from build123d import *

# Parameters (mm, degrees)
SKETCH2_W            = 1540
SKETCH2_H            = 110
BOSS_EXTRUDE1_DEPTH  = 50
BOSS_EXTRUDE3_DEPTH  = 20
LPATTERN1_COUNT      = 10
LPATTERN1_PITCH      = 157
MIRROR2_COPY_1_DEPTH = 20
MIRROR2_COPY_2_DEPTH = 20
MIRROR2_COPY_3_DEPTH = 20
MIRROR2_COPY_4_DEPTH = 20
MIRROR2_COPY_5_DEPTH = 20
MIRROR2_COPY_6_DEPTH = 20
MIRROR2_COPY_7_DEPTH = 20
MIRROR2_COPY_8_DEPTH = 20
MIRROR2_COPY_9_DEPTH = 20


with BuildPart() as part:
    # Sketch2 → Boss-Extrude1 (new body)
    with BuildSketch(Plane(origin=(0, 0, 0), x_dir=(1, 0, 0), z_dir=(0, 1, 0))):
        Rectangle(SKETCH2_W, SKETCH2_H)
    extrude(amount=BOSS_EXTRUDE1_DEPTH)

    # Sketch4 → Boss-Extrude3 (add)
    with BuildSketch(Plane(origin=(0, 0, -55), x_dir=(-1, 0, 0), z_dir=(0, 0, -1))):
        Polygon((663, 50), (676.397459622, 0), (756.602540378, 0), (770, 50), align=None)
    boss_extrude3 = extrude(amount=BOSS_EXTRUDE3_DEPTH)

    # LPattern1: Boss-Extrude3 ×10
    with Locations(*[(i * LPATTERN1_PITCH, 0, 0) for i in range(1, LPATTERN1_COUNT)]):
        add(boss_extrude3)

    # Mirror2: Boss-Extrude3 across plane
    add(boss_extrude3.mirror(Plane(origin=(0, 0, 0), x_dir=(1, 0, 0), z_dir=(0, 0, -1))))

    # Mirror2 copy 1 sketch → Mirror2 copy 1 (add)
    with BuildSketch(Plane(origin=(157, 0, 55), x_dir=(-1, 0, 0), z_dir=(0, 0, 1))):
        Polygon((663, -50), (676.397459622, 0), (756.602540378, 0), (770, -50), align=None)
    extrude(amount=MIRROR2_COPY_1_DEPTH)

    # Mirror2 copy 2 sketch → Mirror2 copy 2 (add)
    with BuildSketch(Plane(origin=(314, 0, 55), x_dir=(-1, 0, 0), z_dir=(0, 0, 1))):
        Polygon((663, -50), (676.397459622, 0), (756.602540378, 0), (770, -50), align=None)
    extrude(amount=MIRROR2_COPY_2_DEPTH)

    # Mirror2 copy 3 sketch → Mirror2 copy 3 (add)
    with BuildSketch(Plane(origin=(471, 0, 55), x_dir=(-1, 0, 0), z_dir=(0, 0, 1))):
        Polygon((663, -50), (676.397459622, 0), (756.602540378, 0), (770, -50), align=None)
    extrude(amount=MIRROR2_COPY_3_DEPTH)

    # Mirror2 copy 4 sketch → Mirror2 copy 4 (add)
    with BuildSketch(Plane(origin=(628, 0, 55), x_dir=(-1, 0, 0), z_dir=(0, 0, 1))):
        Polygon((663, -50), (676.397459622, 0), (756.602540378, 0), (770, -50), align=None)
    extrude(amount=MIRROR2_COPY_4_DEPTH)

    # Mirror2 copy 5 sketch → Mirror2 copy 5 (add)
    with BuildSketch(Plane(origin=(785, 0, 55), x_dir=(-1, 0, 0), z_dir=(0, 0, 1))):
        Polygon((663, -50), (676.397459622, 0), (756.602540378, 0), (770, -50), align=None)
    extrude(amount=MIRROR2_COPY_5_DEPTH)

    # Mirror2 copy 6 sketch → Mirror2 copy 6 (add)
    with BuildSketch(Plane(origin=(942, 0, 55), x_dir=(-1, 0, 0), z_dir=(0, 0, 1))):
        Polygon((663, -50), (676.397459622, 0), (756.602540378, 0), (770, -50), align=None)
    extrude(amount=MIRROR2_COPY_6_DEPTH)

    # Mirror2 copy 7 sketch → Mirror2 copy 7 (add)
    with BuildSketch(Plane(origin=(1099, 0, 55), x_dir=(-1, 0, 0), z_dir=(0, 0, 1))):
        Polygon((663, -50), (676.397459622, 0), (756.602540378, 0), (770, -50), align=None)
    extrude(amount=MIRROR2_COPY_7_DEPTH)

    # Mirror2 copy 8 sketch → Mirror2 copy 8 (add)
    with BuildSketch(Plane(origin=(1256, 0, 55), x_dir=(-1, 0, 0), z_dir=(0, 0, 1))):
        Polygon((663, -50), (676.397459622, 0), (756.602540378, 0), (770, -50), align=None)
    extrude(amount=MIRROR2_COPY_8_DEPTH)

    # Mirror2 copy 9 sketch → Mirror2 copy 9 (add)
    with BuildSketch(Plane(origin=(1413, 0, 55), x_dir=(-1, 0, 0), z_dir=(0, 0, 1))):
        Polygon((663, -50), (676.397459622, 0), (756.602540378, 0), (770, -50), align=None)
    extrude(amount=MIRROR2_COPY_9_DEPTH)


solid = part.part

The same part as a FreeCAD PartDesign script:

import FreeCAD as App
import Part
import Sketcher
from FreeCAD import Vector
Q = App.Units.Quantity

doc = App.newDocument("Part")
params = doc.addObject("Spreadsheet::Sheet", "Params")
for row, (alias, value) in enumerate([
    ("sketch1_width", "1540 mm"),
    ("sketch1_height", "110 mm"),
    ("pad1_length", "50 mm"),
    ("sketch2_width", "107 mm"),
    ("pad2_length", "20 mm"),
    ("linearpattern_pitch", "157 mm"),
    ("sketch3_width", "107 mm"),
    ("pad3_length", "20 mm"),
    ("sketch4_width", "107 mm"),
    ("pad4_length", "20 mm"),
    ("sketch5_width", "107 mm"),
    ("pad5_length", "20 mm"),
    ("sketch6_width", "107 mm"),
    ("pad6_length", "20 mm"),
    ("sketch7_width", "107 mm"),
    ("pad7_length", "20 mm"),
    ("sketch8_width", "107 mm"),
    ("pad8_length", "20 mm"),
    ("sketch9_width", "107 mm"),
    ("pad9_length", "20 mm"),
    ("sketch10_width", "107 mm"),
    ("pad10_length", "20 mm"),
    ("sketch11_width", "107 mm"),
    ("pad11_length", "20 mm"),
], start=1):
    params.set(f"A{row}", alias)
    params.set(f"B{row}", "=" + value)
    params.setAlias(f"B{row}", alias)

body = doc.addObject("PartDesign::Body", "Body")

sketch1 = doc.addObject("Sketcher::SketchObject", "Sketch")
body.addObject(sketch1)
sketch1.AttachmentSupport = (doc.XZ_Plane, [""])
sketch1.MapMode = "FlatFace"
sketch1.addGeometry(Part.LineSegment(Vector(-770, -55, 0), Vector(-770, 55, 0)), False)
sketch1.addGeometry(Part.LineSegment(Vector(-770, 55, 0), Vector(770, 55, 0)), False)
sketch1.addGeometry(Part.LineSegment(Vector(770, 55, 0), Vector(770, -55, 0)), False)
sketch1.addGeometry(Part.LineSegment(Vector(770, -55, 0), Vector(-770, -55, 0)), False)
sketch1.addConstraint(Sketcher.Constraint("Coincident", 0, 2, 1, 1))
sketch1.addConstraint(Sketcher.Constraint("Coincident", 1, 2, 2, 1))
sketch1.addConstraint(Sketcher.Constraint("Coincident", 2, 2, 3, 1))
sketch1.addConstraint(Sketcher.Constraint("Coincident", 3, 2, 0, 1))
sketch1.addConstraint(Sketcher.Constraint("Vertical", 0))
sketch1.addConstraint(Sketcher.Constraint("Horizontal", 1))
sketch1.addConstraint(Sketcher.Constraint("Vertical", 2))
sketch1.addConstraint(Sketcher.Constraint("Horizontal", 3))
sketch1.addConstraint(Sketcher.Constraint("Symmetric", 0, 2, 2, 2, -1, 1))
sketch1.addConstraint(Sketcher.Constraint("DistanceX", 1, 1, 1, 2, Q("1540 mm")))
sketch1.addConstraint(Sketcher.Constraint("DistanceY", 0, 1, 0, 2, Q("110 mm")))
sketch1.setExpression("Constraints[9]", "Params.sketch1_width")
sketch1.setExpression("Constraints[10]", "Params.sketch1_height")
pad1 = doc.addObject("PartDesign::Pad", "Pad")
body.addObject(pad1)
pad1.Profile = sketch1
pad1.setExpression("Length", "Params.pad1_length")
pad1.Reversed = True

sketch2 = doc.addObject("Sketcher::SketchObject", "Sketch001")
body.addObject(sketch2)
sketch2.AttachmentSupport = (doc.XY_Plane, [""])
sketch2.MapMode = "FlatFace"
sketch2.AttachmentOffset = App.Placement(Vector(0, 0, -55), App.Rotation())
sketch2.addGeometry(Part.LineSegment(Vector(-663, 50, 0), Vector(-676, 0, 0)), False)
sketch2.addGeometry(Part.LineSegment(Vector(-676, 0, 0), Vector(-757, 0, 0)), False)
sketch2.addGeometry(Part.LineSegment(Vector(-757, 0, 0), Vector(-770, 50, 0)), False)
sketch2.addGeometry(Part.LineSegment(Vector(-770, 50, 0), Vector(-663, 50, 0)), False)
sketch2.addConstraint(Sketcher.Constraint("Coincident", 0, 2, 1, 1))
sketch2.addConstraint(Sketcher.Constraint("Coincident", 1, 2, 2, 1))
sketch2.addConstraint(Sketcher.Constraint("Coincident", 2, 2, 3, 1))
sketch2.addConstraint(Sketcher.Constraint("Coincident", 3, 2, 0, 1))
sketch2.addConstraint(Sketcher.Constraint("Horizontal", 1))
sketch2.addConstraint(Sketcher.Constraint("Horizontal", 3))
sketch2.addConstraint(Sketcher.Constraint("PointOnObject", 0, 2, -1))
sketch2.addConstraint(Sketcher.Constraint("Equal", 0, 2))
sketch2.addConstraint(Sketcher.Constraint("DistanceX", 3, 1, 3, 2, Q("107 mm")))
sketch2.addConstraint(Sketcher.Constraint("Angle", 0, Q("-105 deg")))
sketch2.addConstraint(Sketcher.Constraint("DistanceX", 2, 2, -1, 1, Q("770 mm")))
sketch2.addConstraint(Sketcher.Constraint("DistanceY", -1, 1, 2, 2, Q("50 mm")))
sketch2.setExpression("Constraints[8]", "Params.sketch2_width")
pad2 = doc.addObject("PartDesign::Pad", "Pad001")
body.addObject(pad2)
pad2.Profile = sketch2
pad2.setExpression("Length", "Params.pad2_length")
pad2.Reversed = True
doc.recompute()

linearpattern = doc.addObject("PartDesign::LinearPattern", "LinearPattern")
body.addObject(linearpattern)
linearpattern.Originals = [pad2]
linearpattern.Direction = (doc.X_Axis, [""])
linearpattern.Mode = "offset"
linearpattern.setExpression("Offset", "Params.linearpattern_pitch")
linearpattern.Occurrences = 10
body.Tip = linearpattern
doc.recompute()

mirrored = doc.addObject("PartDesign::Mirrored", "Mirrored")
body.addObject(mirrored)
mirrored.Originals = [pad2]
mirrored.MirrorPlane = (doc.XY_Plane, [""])
body.Tip = mirrored

sketch3 = doc.addObject("Sketcher::SketchObject", "Sketch002")
body.addObject(sketch3)
sketch3.AttachmentSupport = (doc.XY_Plane, [""])
sketch3.MapMode = "FlatFace"
sketch3.AttachmentOffset = App.Placement(Vector(0, 0, 55), App.Rotation())
sketch3.addGeometry(Part.LineSegment(Vector(-519.39746, 0, 0), Vector(-506, 50, 0)), False)
sketch3.addGeometry(Part.LineSegment(Vector(-506, 50, 0), Vector(-613, 50, 0)), False)
sketch3.addGeometry(Part.LineSegment(Vector(-613, 50, 0), Vector(-599.60254, 0, 0)), False)
sketch3.addGeometry(Part.LineSegment(Vector(-599.60254, 0, 0), Vector(-519.39746, 0, 0)), False)
sketch3.addConstraint(Sketcher.Constraint("Coincident", 0, 2, 1, 1))
sketch3.addConstraint(Sketcher.Constraint("Coincident", 1, 2, 2, 1))
sketch3.addConstraint(Sketcher.Constraint("Coincident", 2, 2, 3, 1))
sketch3.addConstraint(Sketcher.Constraint("Coincident", 3, 2, 0, 1))
sketch3.addConstraint(Sketcher.Constraint("Horizontal", 1))
sketch3.addConstraint(Sketcher.Constraint("Horizontal", 3))
sketch3.addConstraint(Sketcher.Constraint("PointOnObject", 2, 2, -1))
sketch3.addConstraint(Sketcher.Constraint("Equal", 0, 2))
sketch3.addConstraint(Sketcher.Constraint("DistanceX", 1, 2, 1, 1, Q("107 mm")))
sketch3.addConstraint(Sketcher.Constraint("Angle", 0, Q("75 deg")))
sketch3.addConstraint(Sketcher.Constraint("DistanceX", 0, 2, -1, 1, Q("506 mm")))
sketch3.addConstraint(Sketcher.Constraint("DistanceY", -1, 1, 0, 2, Q("50 mm")))
sketch3.setExpression("Constraints[8]", "Params.sketch3_width")
pad3 = doc.addObject("PartDesign::Pad", "Pad002")
body.addObject(pad3)
pad3.Profile = sketch3
pad3.setExpression("Length", "Params.pad3_length")

sketch4 = doc.addObject("Sketcher::SketchObject", "Sketch003")
body.addObject(sketch4)
sketch4.AttachmentSupport = (doc.XY_Plane, [""])
sketch4.MapMode = "FlatFace"
sketch4.AttachmentOffset = App.Placement(Vector(0, 0, 55), App.Rotation())
sketch4.addGeometry(Part.LineSegment(Vector(-362, 0, 0), Vector(-349, 50, 0)), False)
sketch4.addGeometry(Part.LineSegment(Vector(-349, 50, 0), Vector(-456, 50, 0)), False)
sketch4.addGeometry(Part.LineSegment(Vector(-456, 50, 0), Vector(-443, 0, 0)), False)
sketch4.addGeometry(Part.LineSegment(Vector(-443, 0, 0), Vector(-362, 0, 0)), False)
sketch4.addConstraint(Sketcher.Constraint("Coincident", 0, 2, 1, 1))
sketch4.addConstraint(Sketcher.Constraint("Coincident", 1, 2, 2, 1))
sketch4.addConstraint(Sketcher.Constraint("Coincident", 2, 2, 3, 1))
sketch4.addConstraint(Sketcher.Constraint("Coincident", 3, 2, 0, 1))
sketch4.addConstraint(Sketcher.Constraint("Horizontal", 1))
sketch4.addConstraint(Sketcher.Constraint("Horizontal", 3))
sketch4.addConstraint(Sketcher.Constraint("PointOnObject", 2, 2, -1))
sketch4.addConstraint(Sketcher.Constraint("Equal", 0, 2))
sketch4.addConstraint(Sketcher.Constraint("DistanceX", 1, 2, 1, 1, Q("107 mm")))
sketch4.addConstraint(Sketcher.Constraint("Angle", 0, Q("75 deg")))
sketch4.addConstraint(Sketcher.Constraint("DistanceX", 0, 2, -1, 1, Q("349 mm")))
sketch4.addConstraint(Sketcher.Constraint("DistanceY", -1, 1, 0, 2, Q("50 mm")))
sketch4.setExpression("Constraints[8]", "Params.sketch4_width")
pad4 = doc.addObject("PartDesign::Pad", "Pad003")
body.addObject(pad4)
pad4.Profile = sketch4
pad4.setExpression("Length", "Params.pad4_length")

sketch5 = doc.addObject("Sketcher::SketchObject", "Sketch004")
body.addObject(sketch5)
sketch5.AttachmentSupport = (doc.XY_Plane, [""])
sketch5.MapMode = "FlatFace"
sketch5.AttachmentOffset = App.Placement(Vector(0, 0, 55), App.Rotation())
sketch5.addGeometry(Part.LineSegment(Vector(-205, 0, 0), Vector(-192, 50, 0)), False)
sketch5.addGeometry(Part.LineSegment(Vector(-192, 50, 0), Vector(-299, 50, 0)), False)
sketch5.addGeometry(Part.LineSegment(Vector(-299, 50, 0), Vector(-286, 0, 0)), False)
sketch5.addGeometry(Part.LineSegment(Vector(-286, 0, 0), Vector(-205, 0, 0)), False)
sketch5.addConstraint(Sketcher.Constraint("Coincident", 0, 2, 1, 1))
sketch5.addConstraint(Sketcher.Constraint("Coincident", 1, 2, 2, 1))
sketch5.addConstraint(Sketcher.Constraint("Coincident", 2, 2, 3, 1))
sketch5.addConstraint(Sketcher.Constraint("Coincident", 3, 2, 0, 1))
sketch5.addConstraint(Sketcher.Constraint("Horizontal", 1))
sketch5.addConstraint(Sketcher.Constraint("Horizontal", 3))
sketch5.addConstraint(Sketcher.Constraint("PointOnObject", 2, 2, -1))
sketch5.addConstraint(Sketcher.Constraint("Equal", 0, 2))
sketch5.addConstraint(Sketcher.Constraint("DistanceX", 1, 2, 1, 1, Q("107 mm")))
sketch5.addConstraint(Sketcher.Constraint("Angle", 0, Q("75 deg")))
sketch5.addConstraint(Sketcher.Constraint("DistanceX", 0, 2, -1, 1, Q("192 mm")))
sketch5.addConstraint(Sketcher.Constraint("DistanceY", -1, 1, 0, 2, Q("50 mm")))
sketch5.setExpression("Constraints[8]", "Params.sketch5_width")
pad5 = doc.addObject("PartDesign::Pad", "Pad004")
body.addObject(pad5)
pad5.Profile = sketch5
pad5.setExpression("Length", "Params.pad5_length")

sketch6 = doc.addObject("Sketcher::SketchObject", "Sketch005")
body.addObject(sketch6)
sketch6.AttachmentSupport = (doc.XY_Plane, [""])
sketch6.MapMode = "FlatFace"
sketch6.AttachmentOffset = App.Placement(Vector(0, 0, 55), App.Rotation())
sketch6.addGeometry(Part.LineSegment(Vector(-48, 0, 0), Vector(-35, 50, 0)), False)
sketch6.addGeometry(Part.LineSegment(Vector(-35, 50, 0), Vector(-142, 50, 0)), False)
sketch6.addGeometry(Part.LineSegment(Vector(-142, 50, 0), Vector(-129, 0, 0)), False)
sketch6.addGeometry(Part.LineSegment(Vector(-129, 0, 0), Vector(-48, 0, 0)), False)
sketch6.addConstraint(Sketcher.Constraint("Coincident", 0, 2, 1, 1))
sketch6.addConstraint(Sketcher.Constraint("Coincident", 1, 2, 2, 1))
sketch6.addConstraint(Sketcher.Constraint("Coincident", 2, 2, 3, 1))
sketch6.addConstraint(Sketcher.Constraint("Coincident", 3, 2, 0, 1))
sketch6.addConstraint(Sketcher.Constraint("Horizontal", 1))
sketch6.addConstraint(Sketcher.Constraint("Horizontal", 3))
sketch6.addConstraint(Sketcher.Constraint("PointOnObject", 2, 2, -1))
sketch6.addConstraint(Sketcher.Constraint("Equal", 0, 2))
sketch6.addConstraint(Sketcher.Constraint("DistanceX", 1, 2, 1, 1, Q("107 mm")))
sketch6.addConstraint(Sketcher.Constraint("Angle", 0, Q("75 deg")))
sketch6.addConstraint(Sketcher.Constraint("DistanceX", 0, 2, -1, 1, Q("35 mm")))
sketch6.addConstraint(Sketcher.Constraint("DistanceY", -1, 1, 0, 2, Q("50 mm")))
sketch6.setExpression("Constraints[8]", "Params.sketch6_width")
pad6 = doc.addObject("PartDesign::Pad", "Pad005")
body.addObject(pad6)
pad6.Profile = sketch6
pad6.setExpression("Length", "Params.pad6_length")

sketch7 = doc.addObject("Sketcher::SketchObject", "Sketch006")
body.addObject(sketch7)
sketch7.AttachmentSupport = (doc.XY_Plane, [""])
sketch7.MapMode = "FlatFace"
sketch7.AttachmentOffset = App.Placement(Vector(0, 0, 55), App.Rotation())
sketch7.addGeometry(Part.LineSegment(Vector(109, 0, 0), Vector(122, 50, 0)), False)
sketch7.addGeometry(Part.LineSegment(Vector(122, 50, 0), Vector(15, 50, 0)), False)
sketch7.addGeometry(Part.LineSegment(Vector(15, 50, 0), Vector(28, 0, 0)), False)
sketch7.addGeometry(Part.LineSegment(Vector(28, 0, 0), Vector(109, 0, 0)), False)
sketch7.addConstraint(Sketcher.Constraint("Coincident", 0, 2, 1, 1))
sketch7.addConstraint(Sketcher.Constraint("Coincident", 1, 2, 2, 1))
sketch7.addConstraint(Sketcher.Constraint("Coincident", 2, 2, 3, 1))
sketch7.addConstraint(Sketcher.Constraint("Coincident", 3, 2, 0, 1))
sketch7.addConstraint(Sketcher.Constraint("Horizontal", 1))
sketch7.addConstraint(Sketcher.Constraint("Horizontal", 3))
sketch7.addConstraint(Sketcher.Constraint("PointOnObject", 2, 2, -1))
sketch7.addConstraint(Sketcher.Constraint("Equal", 0, 2))
sketch7.addConstraint(Sketcher.Constraint("DistanceX", 1, 2, 1, 1, Q("107 mm")))
sketch7.addConstraint(Sketcher.Constraint("Angle", 0, Q("75 deg")))
sketch7.addConstraint(Sketcher.Constraint("DistanceX", -1, 1, 0, 2, Q("122 mm")))
sketch7.addConstraint(Sketcher.Constraint("DistanceY", -1, 1, 0, 2, Q("50 mm")))
sketch7.setExpression("Constraints[8]", "Params.sketch7_width")
pad7 = doc.addObject("PartDesign::Pad", "Pad006")
body.addObject(pad7)
pad7.Profile = sketch7
pad7.setExpression("Length", "Params.pad7_length")

sketch8 = doc.addObject("Sketcher::SketchObject", "Sketch007")
body.addObject(sketch8)
sketch8.AttachmentSupport = (doc.XY_Plane, [""])
sketch8.MapMode = "FlatFace"
sketch8.AttachmentOffset = App.Placement(Vector(0, 0, 55), App.Rotation())
sketch8.addGeometry(Part.LineSegment(Vector(266, 0, 0), Vector(279, 50, 0)), False)
sketch8.addGeometry(Part.LineSegment(Vector(279, 50, 0), Vector(172, 50, 0)), False)
sketch8.addGeometry(Part.LineSegment(Vector(172, 50, 0), Vector(185, 0, 0)), False)
sketch8.addGeometry(Part.LineSegment(Vector(185, 0, 0), Vector(266, 0, 0)), False)
sketch8.addConstraint(Sketcher.Constraint("Coincident", 0, 2, 1, 1))
sketch8.addConstraint(Sketcher.Constraint("Coincident", 1, 2, 2, 1))
sketch8.addConstraint(Sketcher.Constraint("Coincident", 2, 2, 3, 1))
sketch8.addConstraint(Sketcher.Constraint("Coincident", 3, 2, 0, 1))
sketch8.addConstraint(Sketcher.Constraint("Horizontal", 1))
sketch8.addConstraint(Sketcher.Constraint("Horizontal", 3))
sketch8.addConstraint(Sketcher.Constraint("PointOnObject", 2, 2, -1))
sketch8.addConstraint(Sketcher.Constraint("Equal", 0, 2))
sketch8.addConstraint(Sketcher.Constraint("DistanceX", 1, 2, 1, 1, Q("107 mm")))
sketch8.addConstraint(Sketcher.Constraint("Angle", 0, Q("75 deg")))
sketch8.addConstraint(Sketcher.Constraint("DistanceX", -1, 1, 0, 2, Q("279 mm")))
sketch8.addConstraint(Sketcher.Constraint("DistanceY", -1, 1, 0, 2, Q("50 mm")))
sketch8.setExpression("Constraints[8]", "Params.sketch8_width")
pad8 = doc.addObject("PartDesign::Pad", "Pad007")
body.addObject(pad8)
pad8.Profile = sketch8
pad8.setExpression("Length", "Params.pad8_length")

sketch9 = doc.addObject("Sketcher::SketchObject", "Sketch008")
body.addObject(sketch9)
sketch9.AttachmentSupport = (doc.XY_Plane, [""])
sketch9.MapMode = "FlatFace"
sketch9.AttachmentOffset = App.Placement(Vector(0, 0, 55), App.Rotation())
sketch9.addGeometry(Part.LineSegment(Vector(423, 0, 0), Vector(436, 50, 0)), False)
sketch9.addGeometry(Part.LineSegment(Vector(436, 50, 0), Vector(329, 50, 0)), False)
sketch9.addGeometry(Part.LineSegment(Vector(329, 50, 0), Vector(342, 0, 0)), False)
sketch9.addGeometry(Part.LineSegment(Vector(342, 0, 0), Vector(423, 0, 0)), False)
sketch9.addConstraint(Sketcher.Constraint("Coincident", 0, 2, 1, 1))
sketch9.addConstraint(Sketcher.Constraint("Coincident", 1, 2, 2, 1))
sketch9.addConstraint(Sketcher.Constraint("Coincident", 2, 2, 3, 1))
sketch9.addConstraint(Sketcher.Constraint("Coincident", 3, 2, 0, 1))
sketch9.addConstraint(Sketcher.Constraint("Horizontal", 1))
sketch9.addConstraint(Sketcher.Constraint("Horizontal", 3))
sketch9.addConstraint(Sketcher.Constraint("PointOnObject", 2, 2, -1))
sketch9.addConstraint(Sketcher.Constraint("Equal", 0, 2))
sketch9.addConstraint(Sketcher.Constraint("DistanceX", 1, 2, 1, 1, Q("107 mm")))
sketch9.addConstraint(Sketcher.Constraint("Angle", 0, Q("75 deg")))
sketch9.addConstraint(Sketcher.Constraint("DistanceX", -1, 1, 0, 2, Q("436 mm")))
sketch9.addConstraint(Sketcher.Constraint("DistanceY", -1, 1, 0, 2, Q("50 mm")))
sketch9.setExpression("Constraints[8]", "Params.sketch9_width")
pad9 = doc.addObject("PartDesign::Pad", "Pad008")
body.addObject(pad9)
pad9.Profile = sketch9
pad9.setExpression("Length", "Params.pad9_length")

sketch10 = doc.addObject("Sketcher::SketchObject", "Sketch009")
body.addObject(sketch10)
sketch10.AttachmentSupport = (doc.XY_Plane, [""])
sketch10.MapMode = "FlatFace"
sketch10.AttachmentOffset = App.Placement(Vector(0, 0, 55), App.Rotation())
sketch10.addGeometry(Part.LineSegment(Vector(580, 0, 0), Vector(593, 50, 0)), False)
sketch10.addGeometry(Part.LineSegment(Vector(593, 50, 0), Vector(486, 50, 0)), False)
sketch10.addGeometry(Part.LineSegment(Vector(486, 50, 0), Vector(499, 0, 0)), False)
sketch10.addGeometry(Part.LineSegment(Vector(499, 0, 0), Vector(580, 0, 0)), False)
sketch10.addConstraint(Sketcher.Constraint("Coincident", 0, 2, 1, 1))
sketch10.addConstraint(Sketcher.Constraint("Coincident", 1, 2, 2, 1))
sketch10.addConstraint(Sketcher.Constraint("Coincident", 2, 2, 3, 1))
sketch10.addConstraint(Sketcher.Constraint("Coincident", 3, 2, 0, 1))
sketch10.addConstraint(Sketcher.Constraint("Horizontal", 1))
sketch10.addConstraint(Sketcher.Constraint("Horizontal", 3))
sketch10.addConstraint(Sketcher.Constraint("PointOnObject", 2, 2, -1))
sketch10.addConstraint(Sketcher.Constraint("Equal", 0, 2))
sketch10.addConstraint(Sketcher.Constraint("DistanceX", 1, 2, 1, 1, Q("107 mm")))
sketch10.addConstraint(Sketcher.Constraint("Angle", 0, Q("75 deg")))
sketch10.addConstraint(Sketcher.Constraint("DistanceX", -1, 1, 0, 2, Q("593 mm")))
sketch10.addConstraint(Sketcher.Constraint("DistanceY", -1, 1, 0, 2, Q("50 mm")))
sketch10.setExpression("Constraints[8]", "Params.sketch10_width")
pad10 = doc.addObject("PartDesign::Pad", "Pad009")
body.addObject(pad10)
pad10.Profile = sketch10
pad10.setExpression("Length", "Params.pad10_length")

sketch11 = doc.addObject("Sketcher::SketchObject", "Sketch010")
body.addObject(sketch11)
sketch11.AttachmentSupport = (doc.XY_Plane, [""])
sketch11.MapMode = "FlatFace"
sketch11.AttachmentOffset = App.Placement(Vector(0, 0, 55), App.Rotation())
sketch11.addGeometry(Part.LineSegment(Vector(737, 0, 0), Vector(750, 50, 0)), False)
sketch11.addGeometry(Part.LineSegment(Vector(750, 50, 0), Vector(643, 50, 0)), False)
sketch11.addGeometry(Part.LineSegment(Vector(643, 50, 0), Vector(656, 0, 0)), False)
sketch11.addGeometry(Part.LineSegment(Vector(656, 0, 0), Vector(737, 0, 0)), False)
sketch11.addConstraint(Sketcher.Constraint("Coincident", 0, 2, 1, 1))
sketch11.addConstraint(Sketcher.Constraint("Coincident", 1, 2, 2, 1))
sketch11.addConstraint(Sketcher.Constraint("Coincident", 2, 2, 3, 1))
sketch11.addConstraint(Sketcher.Constraint("Coincident", 3, 2, 0, 1))
sketch11.addConstraint(Sketcher.Constraint("Horizontal", 1))
sketch11.addConstraint(Sketcher.Constraint("Horizontal", 3))
sketch11.addConstraint(Sketcher.Constraint("PointOnObject", 2, 2, -1))
sketch11.addConstraint(Sketcher.Constraint("Equal", 0, 2))
sketch11.addConstraint(Sketcher.Constraint("DistanceX", 1, 2, 1, 1, Q("107 mm")))
sketch11.addConstraint(Sketcher.Constraint("Angle", 0, Q("75 deg")))
sketch11.addConstraint(Sketcher.Constraint("DistanceX", -1, 1, 0, 2, Q("750 mm")))
sketch11.addConstraint(Sketcher.Constraint("DistanceY", -1, 1, 0, 2, Q("50 mm")))
sketch11.setExpression("Constraints[8]", "Params.sketch11_width")
pad11 = doc.addObject("PartDesign::Pad", "Pad010")
body.addObject(pad11)
pad11.Profile = sketch11
pad11.setExpression("Length", "Params.pad11_length")

doc.recompute()
